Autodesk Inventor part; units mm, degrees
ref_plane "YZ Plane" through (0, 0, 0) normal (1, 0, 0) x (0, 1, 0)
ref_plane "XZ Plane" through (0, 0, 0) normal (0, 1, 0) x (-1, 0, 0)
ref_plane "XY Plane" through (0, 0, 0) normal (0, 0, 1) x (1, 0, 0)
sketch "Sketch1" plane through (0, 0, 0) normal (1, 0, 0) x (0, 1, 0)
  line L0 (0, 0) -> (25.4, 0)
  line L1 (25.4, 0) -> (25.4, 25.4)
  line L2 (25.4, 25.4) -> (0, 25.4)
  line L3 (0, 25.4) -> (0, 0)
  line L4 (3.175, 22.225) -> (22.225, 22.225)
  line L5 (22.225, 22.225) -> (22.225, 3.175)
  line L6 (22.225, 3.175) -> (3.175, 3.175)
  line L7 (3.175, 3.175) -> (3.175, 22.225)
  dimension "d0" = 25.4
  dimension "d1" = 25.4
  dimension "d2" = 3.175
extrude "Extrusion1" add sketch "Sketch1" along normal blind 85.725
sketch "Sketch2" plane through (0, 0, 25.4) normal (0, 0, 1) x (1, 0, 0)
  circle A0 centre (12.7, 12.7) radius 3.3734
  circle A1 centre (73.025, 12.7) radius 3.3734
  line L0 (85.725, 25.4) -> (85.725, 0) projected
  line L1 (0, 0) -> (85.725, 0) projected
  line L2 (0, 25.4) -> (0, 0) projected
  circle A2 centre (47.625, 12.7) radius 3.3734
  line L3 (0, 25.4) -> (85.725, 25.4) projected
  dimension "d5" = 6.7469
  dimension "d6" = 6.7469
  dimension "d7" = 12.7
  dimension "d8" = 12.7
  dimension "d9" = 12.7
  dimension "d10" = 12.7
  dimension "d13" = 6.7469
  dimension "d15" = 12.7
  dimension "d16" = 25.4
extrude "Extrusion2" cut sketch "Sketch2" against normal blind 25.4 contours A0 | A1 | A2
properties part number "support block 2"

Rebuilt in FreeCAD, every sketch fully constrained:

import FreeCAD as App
import Part
import Sketcher
Q = App.Units.Quantity


def add_polygon(sketch, points):
    """Adds a closed chain of lines whose ends are joined by coincident constraints."""
    first, n = sketch.GeometryCount, len(points)
    for a, b in zip(points, points[1:] + points[:1]):
        sketch.addGeometry(Part.LineSegment(App.Vector(*a, 0), App.Vector(*b, 0)), False)
    for i in range(n):
        sketch.addConstraint(Sketcher.Constraint("Coincident", first + i, 2, first + (i + 1) % n, 1))

doc = App.newDocument("Part")
body = doc.addObject("PartDesign::Body", "Body")

sketch1 = body.newObject("Sketcher::SketchObject", "Sketch")
sketch1.AttachmentSupport = (doc.getObject("YZ_Plane"), [""])
sketch1.MapMode = "FlatFace"
add_polygon(sketch1, [(0, 25), (0, 0), (25, 0), (25, 25)])
add_polygon(sketch1, [(3, 3), (3, 22), (22, 22), (22, 3)])
sketch1.addConstraint([
    Sketcher.Constraint("Vertical", 0),
    Sketcher.Constraint("Horizontal", 1),
    Sketcher.Constraint("Vertical", 2),
    Sketcher.Constraint("Horizontal", 3),
    Sketcher.Constraint("Vertical", 4),
    Sketcher.Constraint("Horizontal", 5),
    Sketcher.Constraint("Vertical", 6),
    Sketcher.Constraint("Horizontal", 7),
    Sketcher.Constraint("Coincident", 0, 2, -1, 1),
    Sketcher.Constraint("Equal", 3, 0),
    Sketcher.Constraint("Equal", 7, 4),
    Sketcher.Constraint("DistanceX", 1, 1, 1, 2, Q("1 in")),
    Sketcher.Constraint("DistanceX", -1, 1, 4, 2, Q("0.125 in")),
    Sketcher.Constraint("DistanceY", -1, 1, 6, 2, Q("0.125 in")),
    Sketcher.Constraint("DistanceY", 4, 2, 3, 2, Q("0.125 in")),
])
pad1 = body.newObject("PartDesign::Pad", "Pad")
pad1.Profile = sketch1
pad1.Length = Q("3.375 in")

sketch2 = body.newObject("Sketcher::SketchObject", "Sketch001")
sketch2.AttachmentSupport = (doc.getObject("XY_Plane"), [""])
sketch2.MapMode = "FlatFace"
sketch2.AttachmentOffset = App.Placement(App.Vector(0, 0, 1 * 25.4), App.Rotation())
sketch2.addGeometry([
    Part.Circle(App.Vector(12.7, 12.7, 0), App.Vector(0, 0, 1), 3.4),
    Part.Circle(App.Vector(73, 12.7, 0), App.Vector(0, 0, 1), 3.4),
    Part.Circle(App.Vector(47.6, 12.7, 0), App.Vector(0, 0, 1), 3.4),
], False)
sketch2.addConstraint([
    Sketcher.Constraint("Equal", 0, 1),
    Sketcher.Constraint("Equal", 1, 2),
    Sketcher.Constraint("Horizontal", 0, 3, 1, 3),
    Sketcher.Constraint("Horizontal", 1, 3, 2, 3),
    Sketcher.Constraint("Diameter", 0, Q("0.265622 in")),
    Sketcher.Constraint("DistanceX", 2, 3, 1, 3, Q("1 in")),
    Sketcher.Constraint("DistanceX", -1, 1, 0, 3, Q("0.5 in")),
    Sketcher.Constraint("DistanceY", -1, 1, 0, 3, Q("0.5 in")),
    Sketcher.Constraint("DistanceX", -1, 1, 1, 3, Q("2.875 in")),
])
pocket1 = body.newObject("PartDesign::Pocket", "Pocket")
pocket1.Profile = sketch2
pocket1.Length = Q("1 in")

doc.recompute()
